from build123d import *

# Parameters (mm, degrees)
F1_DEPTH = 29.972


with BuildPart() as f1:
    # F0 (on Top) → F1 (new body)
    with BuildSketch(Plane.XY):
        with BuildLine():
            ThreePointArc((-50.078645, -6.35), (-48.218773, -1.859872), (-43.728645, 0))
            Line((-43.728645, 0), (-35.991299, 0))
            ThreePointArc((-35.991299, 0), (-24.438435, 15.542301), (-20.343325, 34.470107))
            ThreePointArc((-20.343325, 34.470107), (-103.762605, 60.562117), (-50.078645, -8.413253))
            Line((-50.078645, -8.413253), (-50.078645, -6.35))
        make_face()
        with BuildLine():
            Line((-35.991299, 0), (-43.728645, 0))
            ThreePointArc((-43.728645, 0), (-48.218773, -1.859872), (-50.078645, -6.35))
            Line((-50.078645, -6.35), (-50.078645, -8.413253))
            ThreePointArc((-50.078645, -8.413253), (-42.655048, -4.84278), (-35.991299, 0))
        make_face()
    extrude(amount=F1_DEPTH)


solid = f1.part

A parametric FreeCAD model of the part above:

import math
import FreeCAD as App
import Part
import Sketcher
Q = App.Units.Quantity

doc = App.newDocument("Part")
body = doc.addObject("PartDesign::Body", "Body")

sketch1 = body.newObject("Sketcher::SketchObject", "Sketch")
sketch1.AttachmentSupport = (doc.getObject("XY_Plane"), [""])
sketch1.MapMode = "FlatFace"
sketch1.addGeometry(Part.ArcOfCircle(Part.Circle(App.Vector(-66.133509, 34.470105, 0), App.Vector(0, 0, 1), 45.790184), math.radians(-48.832091), math.radians(0.000003)), False)
sketch1.addGeometry(Part.ArcOfCircle(Part.Circle(App.Vector(-66.133514, 34.470107, 0), App.Vector(0, 0, 1), 45.790189), math.radians(-0.000001), math.radians(290.525126)), False)
sketch1.addGeometry(Part.ArcOfCircle(Part.Circle(App.Vector(-66.133494, 34.470074, 0), App.Vector(0, 0, 1), 45.790151), math.radians(-69.474884), math.radians(-48.83208)), False)
sketch1.addConstraint(Sketcher.Constraint("Coincident", 0, 2, 1, 1))
sketch1.addConstraint(Sketcher.Constraint("Coincident", 1, 2, 2, 1))
sketch1.addConstraint(Sketcher.Constraint("Coincident", 2, 2, 0, 1))
sketch1.addConstraint(Sketcher.Constraint("Coincident", 1, 3, 0, 3))
sketch1.addConstraint(Sketcher.Constraint("PointOnObject", 2, 2, -1))
sketch1.addConstraint(Sketcher.Constraint("Radius", 1, Q("45.790189 mm")))
sketch1.addConstraint(Sketcher.Constraint("Radius", 2, Q("45.790151 mm")))
sketch1.addConstraint(Sketcher.Constraint("DistanceX", 1, 2, -1, 1, Q("1.9716002 in")))
sketch1.addConstraint(Sketcher.Constraint("DistanceX", 2, 2, -1, 1, Q("35.991299 mm")))
sketch1.addConstraint(Sketcher.Constraint("DistanceX", 0, 3, -1, 1, Q("66.133509 mm")))
sketch1.addConstraint(Sketcher.Constraint("DistanceY", 1, 2, 0, 2, Q("42.88336 mm")))
pad1 = body.newObject("PartDesign::Pad", "Pad")
pad1.Profile = sketch1
pad1.Length = Q("1.18 in")

doc.recompute()
